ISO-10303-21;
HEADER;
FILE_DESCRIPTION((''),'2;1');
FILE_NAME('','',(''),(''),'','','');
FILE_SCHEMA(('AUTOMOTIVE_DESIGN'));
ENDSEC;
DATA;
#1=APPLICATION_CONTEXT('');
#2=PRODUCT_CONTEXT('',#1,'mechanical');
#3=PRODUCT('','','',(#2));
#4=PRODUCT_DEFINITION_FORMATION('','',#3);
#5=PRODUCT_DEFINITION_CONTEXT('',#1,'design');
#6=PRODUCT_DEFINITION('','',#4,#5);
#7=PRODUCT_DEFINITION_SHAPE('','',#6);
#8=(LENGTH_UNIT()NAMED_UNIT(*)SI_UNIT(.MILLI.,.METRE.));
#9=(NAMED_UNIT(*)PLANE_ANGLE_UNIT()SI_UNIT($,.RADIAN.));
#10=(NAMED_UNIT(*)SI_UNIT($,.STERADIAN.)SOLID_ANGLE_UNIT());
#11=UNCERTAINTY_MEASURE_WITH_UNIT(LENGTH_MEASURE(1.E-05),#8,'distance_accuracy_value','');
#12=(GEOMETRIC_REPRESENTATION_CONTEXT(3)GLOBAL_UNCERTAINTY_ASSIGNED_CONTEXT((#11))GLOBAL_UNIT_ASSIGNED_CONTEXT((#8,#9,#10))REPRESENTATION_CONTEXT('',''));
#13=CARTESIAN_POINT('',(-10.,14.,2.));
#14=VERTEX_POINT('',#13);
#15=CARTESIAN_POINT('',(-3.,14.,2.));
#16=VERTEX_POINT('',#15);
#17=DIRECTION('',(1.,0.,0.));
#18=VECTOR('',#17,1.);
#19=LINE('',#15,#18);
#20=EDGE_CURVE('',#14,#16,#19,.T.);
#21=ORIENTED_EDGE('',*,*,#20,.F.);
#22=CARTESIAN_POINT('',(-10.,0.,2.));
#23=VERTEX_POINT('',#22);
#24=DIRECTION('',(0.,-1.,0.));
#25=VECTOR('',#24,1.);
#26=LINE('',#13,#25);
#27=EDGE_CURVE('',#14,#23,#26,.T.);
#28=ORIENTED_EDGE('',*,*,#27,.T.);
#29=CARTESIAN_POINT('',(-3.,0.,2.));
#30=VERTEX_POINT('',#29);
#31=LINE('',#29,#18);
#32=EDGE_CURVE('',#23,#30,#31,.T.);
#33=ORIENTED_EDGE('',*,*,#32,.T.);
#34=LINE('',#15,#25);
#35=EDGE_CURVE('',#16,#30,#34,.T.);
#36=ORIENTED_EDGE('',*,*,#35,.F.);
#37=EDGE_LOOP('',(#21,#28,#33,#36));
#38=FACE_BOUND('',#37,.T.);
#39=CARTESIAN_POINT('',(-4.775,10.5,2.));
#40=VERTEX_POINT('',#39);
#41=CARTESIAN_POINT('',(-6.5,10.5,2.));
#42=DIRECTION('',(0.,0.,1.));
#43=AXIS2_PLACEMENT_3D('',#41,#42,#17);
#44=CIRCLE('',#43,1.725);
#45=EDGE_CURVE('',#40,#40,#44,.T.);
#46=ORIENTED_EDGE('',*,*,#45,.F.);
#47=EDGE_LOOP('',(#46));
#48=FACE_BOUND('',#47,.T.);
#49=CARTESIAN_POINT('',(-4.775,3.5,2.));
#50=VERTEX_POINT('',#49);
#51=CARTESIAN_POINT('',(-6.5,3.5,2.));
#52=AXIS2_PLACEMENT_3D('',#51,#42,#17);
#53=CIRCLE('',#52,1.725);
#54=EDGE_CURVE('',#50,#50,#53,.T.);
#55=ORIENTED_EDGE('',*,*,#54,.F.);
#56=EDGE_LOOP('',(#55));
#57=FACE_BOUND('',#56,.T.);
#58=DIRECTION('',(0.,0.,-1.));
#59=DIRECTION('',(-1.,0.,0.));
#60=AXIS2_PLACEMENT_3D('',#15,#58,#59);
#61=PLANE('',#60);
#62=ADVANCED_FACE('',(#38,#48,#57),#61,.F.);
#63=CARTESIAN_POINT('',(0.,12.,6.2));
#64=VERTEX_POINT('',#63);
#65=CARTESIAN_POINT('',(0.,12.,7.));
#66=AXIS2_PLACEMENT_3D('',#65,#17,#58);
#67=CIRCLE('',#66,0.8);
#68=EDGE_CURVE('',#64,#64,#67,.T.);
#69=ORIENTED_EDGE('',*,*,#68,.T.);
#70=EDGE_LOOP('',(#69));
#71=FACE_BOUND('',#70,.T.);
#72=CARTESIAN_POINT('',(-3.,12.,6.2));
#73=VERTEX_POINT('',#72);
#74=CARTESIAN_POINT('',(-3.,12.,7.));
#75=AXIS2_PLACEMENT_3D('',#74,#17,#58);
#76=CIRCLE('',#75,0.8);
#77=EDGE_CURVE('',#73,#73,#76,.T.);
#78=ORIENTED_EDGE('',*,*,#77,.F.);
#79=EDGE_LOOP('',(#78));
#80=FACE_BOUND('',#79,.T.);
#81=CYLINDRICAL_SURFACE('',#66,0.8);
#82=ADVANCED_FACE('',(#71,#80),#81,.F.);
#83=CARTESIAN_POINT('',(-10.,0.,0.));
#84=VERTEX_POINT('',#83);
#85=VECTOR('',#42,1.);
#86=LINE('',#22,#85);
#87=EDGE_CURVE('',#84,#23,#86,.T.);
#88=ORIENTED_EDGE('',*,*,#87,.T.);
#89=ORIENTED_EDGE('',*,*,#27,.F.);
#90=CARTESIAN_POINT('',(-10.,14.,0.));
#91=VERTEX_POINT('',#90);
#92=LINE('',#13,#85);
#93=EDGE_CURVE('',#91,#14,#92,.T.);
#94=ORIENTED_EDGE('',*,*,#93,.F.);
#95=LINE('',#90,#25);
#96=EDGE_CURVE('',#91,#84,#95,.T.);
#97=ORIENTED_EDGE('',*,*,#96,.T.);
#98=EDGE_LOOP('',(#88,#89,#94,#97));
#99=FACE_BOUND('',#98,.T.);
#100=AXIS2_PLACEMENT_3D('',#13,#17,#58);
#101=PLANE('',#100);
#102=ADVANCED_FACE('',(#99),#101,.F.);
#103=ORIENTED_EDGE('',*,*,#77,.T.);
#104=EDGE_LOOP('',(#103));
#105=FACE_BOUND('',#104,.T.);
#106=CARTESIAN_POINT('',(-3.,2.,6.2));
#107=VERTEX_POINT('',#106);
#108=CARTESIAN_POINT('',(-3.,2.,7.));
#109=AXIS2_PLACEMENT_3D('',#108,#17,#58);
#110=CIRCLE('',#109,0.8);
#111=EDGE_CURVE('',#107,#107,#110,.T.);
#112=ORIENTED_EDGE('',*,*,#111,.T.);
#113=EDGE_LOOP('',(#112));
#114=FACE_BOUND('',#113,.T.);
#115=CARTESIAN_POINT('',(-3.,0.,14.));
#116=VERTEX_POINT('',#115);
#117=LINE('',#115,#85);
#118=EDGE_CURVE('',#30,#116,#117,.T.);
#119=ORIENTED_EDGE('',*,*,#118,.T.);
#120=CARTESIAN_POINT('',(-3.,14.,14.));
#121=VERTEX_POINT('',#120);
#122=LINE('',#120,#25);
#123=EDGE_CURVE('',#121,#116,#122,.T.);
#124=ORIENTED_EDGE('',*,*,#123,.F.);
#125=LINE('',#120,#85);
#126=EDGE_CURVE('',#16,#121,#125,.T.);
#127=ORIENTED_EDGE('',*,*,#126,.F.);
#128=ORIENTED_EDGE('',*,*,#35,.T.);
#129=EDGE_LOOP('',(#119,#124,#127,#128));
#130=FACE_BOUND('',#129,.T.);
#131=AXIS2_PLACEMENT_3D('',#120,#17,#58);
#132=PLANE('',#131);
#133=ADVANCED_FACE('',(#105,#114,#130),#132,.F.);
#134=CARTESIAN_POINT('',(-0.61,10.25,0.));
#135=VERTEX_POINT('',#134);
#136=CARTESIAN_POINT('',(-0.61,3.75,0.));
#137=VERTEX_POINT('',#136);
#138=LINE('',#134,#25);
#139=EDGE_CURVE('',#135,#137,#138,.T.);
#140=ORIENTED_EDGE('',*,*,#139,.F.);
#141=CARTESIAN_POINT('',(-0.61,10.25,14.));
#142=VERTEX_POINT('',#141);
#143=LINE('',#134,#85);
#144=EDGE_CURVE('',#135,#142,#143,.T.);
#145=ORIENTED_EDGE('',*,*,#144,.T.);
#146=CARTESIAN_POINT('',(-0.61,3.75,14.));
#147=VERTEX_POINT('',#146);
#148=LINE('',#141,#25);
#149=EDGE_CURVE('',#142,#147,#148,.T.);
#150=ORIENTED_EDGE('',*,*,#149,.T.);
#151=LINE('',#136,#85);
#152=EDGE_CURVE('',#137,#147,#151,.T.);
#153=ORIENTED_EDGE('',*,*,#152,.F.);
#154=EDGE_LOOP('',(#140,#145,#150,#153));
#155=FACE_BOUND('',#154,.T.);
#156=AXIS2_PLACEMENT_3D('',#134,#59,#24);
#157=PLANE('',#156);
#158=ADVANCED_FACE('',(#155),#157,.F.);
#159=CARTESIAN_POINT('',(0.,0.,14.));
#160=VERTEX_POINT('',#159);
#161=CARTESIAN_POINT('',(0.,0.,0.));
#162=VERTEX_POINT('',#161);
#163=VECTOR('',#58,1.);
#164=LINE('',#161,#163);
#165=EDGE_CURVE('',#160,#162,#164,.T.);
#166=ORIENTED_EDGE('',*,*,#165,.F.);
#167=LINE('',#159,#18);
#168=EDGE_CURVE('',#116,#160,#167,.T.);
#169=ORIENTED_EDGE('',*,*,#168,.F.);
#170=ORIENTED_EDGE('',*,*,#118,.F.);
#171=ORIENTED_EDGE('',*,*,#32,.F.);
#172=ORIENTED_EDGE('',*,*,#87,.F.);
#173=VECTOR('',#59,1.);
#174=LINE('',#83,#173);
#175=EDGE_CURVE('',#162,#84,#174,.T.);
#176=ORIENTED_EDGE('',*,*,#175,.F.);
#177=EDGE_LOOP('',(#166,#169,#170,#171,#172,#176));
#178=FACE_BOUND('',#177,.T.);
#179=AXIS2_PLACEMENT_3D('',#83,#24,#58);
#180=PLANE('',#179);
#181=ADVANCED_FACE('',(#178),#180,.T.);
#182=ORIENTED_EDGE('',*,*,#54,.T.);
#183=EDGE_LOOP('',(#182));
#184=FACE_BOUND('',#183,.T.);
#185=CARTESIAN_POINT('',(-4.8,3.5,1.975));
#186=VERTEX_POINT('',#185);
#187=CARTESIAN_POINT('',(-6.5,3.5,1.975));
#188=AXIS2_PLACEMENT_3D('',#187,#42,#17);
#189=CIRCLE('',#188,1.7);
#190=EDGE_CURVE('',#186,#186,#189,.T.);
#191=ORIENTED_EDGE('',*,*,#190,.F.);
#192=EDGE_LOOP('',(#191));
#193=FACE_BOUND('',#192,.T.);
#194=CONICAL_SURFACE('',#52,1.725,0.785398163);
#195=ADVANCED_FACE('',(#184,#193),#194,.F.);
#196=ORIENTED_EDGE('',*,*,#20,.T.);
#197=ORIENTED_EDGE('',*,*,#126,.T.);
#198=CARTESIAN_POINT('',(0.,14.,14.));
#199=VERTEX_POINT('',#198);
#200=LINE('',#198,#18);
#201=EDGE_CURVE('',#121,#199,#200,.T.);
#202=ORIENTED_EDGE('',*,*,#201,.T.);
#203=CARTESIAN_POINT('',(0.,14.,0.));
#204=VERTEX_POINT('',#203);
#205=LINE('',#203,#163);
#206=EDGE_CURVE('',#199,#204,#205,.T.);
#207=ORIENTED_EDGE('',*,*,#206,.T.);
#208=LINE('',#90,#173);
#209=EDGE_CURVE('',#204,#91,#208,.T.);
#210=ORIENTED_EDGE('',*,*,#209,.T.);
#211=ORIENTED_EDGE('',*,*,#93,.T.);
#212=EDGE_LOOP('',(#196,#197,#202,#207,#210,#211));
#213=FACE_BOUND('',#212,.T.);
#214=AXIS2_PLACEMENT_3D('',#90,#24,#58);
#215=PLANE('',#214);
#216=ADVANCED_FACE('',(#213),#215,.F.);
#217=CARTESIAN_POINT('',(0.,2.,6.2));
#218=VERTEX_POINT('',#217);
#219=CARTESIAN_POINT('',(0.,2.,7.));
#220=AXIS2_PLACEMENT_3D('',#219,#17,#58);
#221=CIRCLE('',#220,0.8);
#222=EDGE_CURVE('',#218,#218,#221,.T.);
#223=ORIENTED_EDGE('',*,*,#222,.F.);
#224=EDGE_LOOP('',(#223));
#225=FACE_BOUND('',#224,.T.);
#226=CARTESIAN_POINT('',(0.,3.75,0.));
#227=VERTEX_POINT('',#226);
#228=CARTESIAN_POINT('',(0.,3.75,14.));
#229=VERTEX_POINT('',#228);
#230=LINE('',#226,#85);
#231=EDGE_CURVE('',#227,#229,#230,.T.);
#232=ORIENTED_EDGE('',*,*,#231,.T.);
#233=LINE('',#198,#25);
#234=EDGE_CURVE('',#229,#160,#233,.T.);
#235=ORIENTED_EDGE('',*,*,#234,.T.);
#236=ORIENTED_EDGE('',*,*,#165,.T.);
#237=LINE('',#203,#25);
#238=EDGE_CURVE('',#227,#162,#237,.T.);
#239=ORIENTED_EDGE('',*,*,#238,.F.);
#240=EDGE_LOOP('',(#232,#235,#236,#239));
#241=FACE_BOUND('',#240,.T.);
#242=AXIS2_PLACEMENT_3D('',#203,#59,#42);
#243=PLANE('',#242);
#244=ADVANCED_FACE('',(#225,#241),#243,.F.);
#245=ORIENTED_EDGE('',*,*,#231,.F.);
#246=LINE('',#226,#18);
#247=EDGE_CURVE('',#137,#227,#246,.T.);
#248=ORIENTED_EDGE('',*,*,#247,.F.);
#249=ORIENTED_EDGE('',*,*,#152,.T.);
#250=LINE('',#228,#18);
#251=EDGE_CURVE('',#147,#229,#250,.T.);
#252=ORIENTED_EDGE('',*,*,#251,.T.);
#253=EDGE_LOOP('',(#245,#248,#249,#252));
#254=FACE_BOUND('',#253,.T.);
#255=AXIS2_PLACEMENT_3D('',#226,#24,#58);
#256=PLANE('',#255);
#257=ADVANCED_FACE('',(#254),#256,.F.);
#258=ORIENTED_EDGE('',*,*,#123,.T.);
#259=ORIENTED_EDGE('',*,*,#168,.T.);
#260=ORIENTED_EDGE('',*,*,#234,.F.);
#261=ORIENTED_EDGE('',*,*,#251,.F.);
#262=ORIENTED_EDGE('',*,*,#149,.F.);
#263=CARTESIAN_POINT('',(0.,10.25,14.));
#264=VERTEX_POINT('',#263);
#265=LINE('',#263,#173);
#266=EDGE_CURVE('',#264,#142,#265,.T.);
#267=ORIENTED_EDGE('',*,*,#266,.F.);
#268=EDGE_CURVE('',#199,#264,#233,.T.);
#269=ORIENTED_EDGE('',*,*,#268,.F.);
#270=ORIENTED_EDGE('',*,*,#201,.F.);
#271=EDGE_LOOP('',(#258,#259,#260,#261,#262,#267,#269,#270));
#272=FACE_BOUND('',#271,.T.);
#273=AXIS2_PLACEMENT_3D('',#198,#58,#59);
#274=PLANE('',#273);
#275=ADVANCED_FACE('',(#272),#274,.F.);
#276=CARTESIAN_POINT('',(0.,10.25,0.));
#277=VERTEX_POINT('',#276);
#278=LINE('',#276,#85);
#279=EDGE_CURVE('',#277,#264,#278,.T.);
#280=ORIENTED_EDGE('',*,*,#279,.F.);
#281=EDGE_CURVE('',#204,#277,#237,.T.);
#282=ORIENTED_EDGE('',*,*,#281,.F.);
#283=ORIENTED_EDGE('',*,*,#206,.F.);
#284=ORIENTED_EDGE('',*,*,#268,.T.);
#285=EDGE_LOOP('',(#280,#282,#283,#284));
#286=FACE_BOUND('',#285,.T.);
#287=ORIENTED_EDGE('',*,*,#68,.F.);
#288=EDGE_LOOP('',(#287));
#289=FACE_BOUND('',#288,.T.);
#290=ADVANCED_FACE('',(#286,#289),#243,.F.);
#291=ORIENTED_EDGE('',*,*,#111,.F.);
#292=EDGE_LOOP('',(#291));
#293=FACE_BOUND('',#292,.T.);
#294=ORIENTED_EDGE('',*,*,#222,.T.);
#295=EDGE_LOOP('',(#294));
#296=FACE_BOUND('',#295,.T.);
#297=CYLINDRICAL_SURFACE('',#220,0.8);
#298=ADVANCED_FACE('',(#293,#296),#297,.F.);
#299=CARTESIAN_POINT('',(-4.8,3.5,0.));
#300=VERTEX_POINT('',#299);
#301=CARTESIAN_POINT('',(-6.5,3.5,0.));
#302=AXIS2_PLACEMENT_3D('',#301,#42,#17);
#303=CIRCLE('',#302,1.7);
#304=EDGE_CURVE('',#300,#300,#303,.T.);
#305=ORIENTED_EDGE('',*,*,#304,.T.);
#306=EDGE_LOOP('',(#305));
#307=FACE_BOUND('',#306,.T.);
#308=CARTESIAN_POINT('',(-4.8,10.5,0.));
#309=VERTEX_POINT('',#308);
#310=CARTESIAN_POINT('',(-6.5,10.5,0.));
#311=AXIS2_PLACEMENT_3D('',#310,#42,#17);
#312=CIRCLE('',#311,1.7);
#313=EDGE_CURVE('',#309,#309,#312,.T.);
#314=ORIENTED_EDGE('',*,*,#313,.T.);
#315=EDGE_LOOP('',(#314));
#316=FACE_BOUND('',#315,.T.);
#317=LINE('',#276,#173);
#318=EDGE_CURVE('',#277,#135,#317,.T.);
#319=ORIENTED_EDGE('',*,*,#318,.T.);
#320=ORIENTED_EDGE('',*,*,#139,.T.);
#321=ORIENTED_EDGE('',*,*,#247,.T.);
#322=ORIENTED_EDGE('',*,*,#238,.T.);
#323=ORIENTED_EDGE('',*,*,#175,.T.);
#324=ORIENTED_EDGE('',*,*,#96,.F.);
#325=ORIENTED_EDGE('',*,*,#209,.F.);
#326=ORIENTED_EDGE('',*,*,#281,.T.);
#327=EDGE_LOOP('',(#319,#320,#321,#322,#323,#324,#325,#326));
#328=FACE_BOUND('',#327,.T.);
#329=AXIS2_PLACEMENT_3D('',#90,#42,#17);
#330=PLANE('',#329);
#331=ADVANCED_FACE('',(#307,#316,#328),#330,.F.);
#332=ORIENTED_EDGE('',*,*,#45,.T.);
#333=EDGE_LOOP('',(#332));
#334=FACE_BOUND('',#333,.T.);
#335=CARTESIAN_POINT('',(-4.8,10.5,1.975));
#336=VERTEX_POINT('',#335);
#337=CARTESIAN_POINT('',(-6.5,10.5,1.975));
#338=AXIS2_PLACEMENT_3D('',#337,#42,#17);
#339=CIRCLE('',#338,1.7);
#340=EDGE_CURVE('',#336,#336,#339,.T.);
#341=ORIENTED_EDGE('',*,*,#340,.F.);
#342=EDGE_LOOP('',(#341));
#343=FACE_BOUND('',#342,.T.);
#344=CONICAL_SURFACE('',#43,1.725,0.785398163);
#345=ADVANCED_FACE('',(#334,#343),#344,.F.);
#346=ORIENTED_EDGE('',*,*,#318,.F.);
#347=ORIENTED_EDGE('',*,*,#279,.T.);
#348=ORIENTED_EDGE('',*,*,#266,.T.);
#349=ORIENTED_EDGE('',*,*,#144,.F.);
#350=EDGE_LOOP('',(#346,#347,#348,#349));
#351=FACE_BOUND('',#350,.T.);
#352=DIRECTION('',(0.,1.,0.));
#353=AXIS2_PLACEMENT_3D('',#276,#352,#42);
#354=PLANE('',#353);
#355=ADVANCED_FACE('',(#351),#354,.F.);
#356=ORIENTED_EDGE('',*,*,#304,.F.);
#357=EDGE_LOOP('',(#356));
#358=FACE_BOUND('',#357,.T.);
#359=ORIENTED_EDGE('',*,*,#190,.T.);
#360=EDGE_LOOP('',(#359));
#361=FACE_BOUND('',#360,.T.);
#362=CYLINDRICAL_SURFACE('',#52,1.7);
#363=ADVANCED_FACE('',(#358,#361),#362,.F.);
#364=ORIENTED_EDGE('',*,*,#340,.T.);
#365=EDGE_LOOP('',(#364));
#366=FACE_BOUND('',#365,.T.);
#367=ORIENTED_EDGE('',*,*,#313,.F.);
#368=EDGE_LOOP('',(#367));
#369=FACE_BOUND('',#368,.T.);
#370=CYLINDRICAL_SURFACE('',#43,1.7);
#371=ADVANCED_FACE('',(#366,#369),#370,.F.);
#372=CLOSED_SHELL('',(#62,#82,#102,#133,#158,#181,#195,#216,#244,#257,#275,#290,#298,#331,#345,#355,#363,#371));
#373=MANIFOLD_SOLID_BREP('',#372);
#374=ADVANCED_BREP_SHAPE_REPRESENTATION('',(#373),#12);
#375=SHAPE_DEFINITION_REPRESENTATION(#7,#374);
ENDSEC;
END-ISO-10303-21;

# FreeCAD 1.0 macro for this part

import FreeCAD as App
import Part
import Sketcher

V = App.Vector


def add_polygon(sketch, points):
    """Adds a closed chain of lines whose ends are joined by coincident constraints."""
    first, n = sketch.GeometryCount, len(points)
    for a, b in zip(points, points[1:] + points[:1]):
        sketch.addGeometry(Part.LineSegment(App.Vector(*a, 0), App.Vector(*b, 0)), False)
    for i in range(n):
        sketch.addConstraint(Sketcher.Constraint("Coincident", first + i, 2, first + (i + 1) % n, 1))

doc = App.newDocument("Part")
body = doc.addObject("PartDesign::Body", "Body")

# Sketch on XZ plane
sketch1 = doc.addObject("Sketcher::SketchObject", "Sketch")
body.addObject(sketch1)
sketch1.AttachmentSupport = (doc.XZ_Plane, [""])
sketch1.MapMode = "FlatFace"
add_polygon(sketch1, [(0, 0), (-10, 0), (-10, 2), (-3, 2), (-3, 14), (0, 14)])  # lines 0-5
sketch1.addConstraint(Sketcher.Constraint("Horizontal", 0))
sketch1.addConstraint(Sketcher.Constraint("Vertical", 1))
sketch1.addConstraint(Sketcher.Constraint("Horizontal", 2))
sketch1.addConstraint(Sketcher.Constraint("Vertical", 3))
sketch1.addConstraint(Sketcher.Constraint("Horizontal", 4))
sketch1.addConstraint(Sketcher.Constraint("Vertical", 5))
sketch1.addConstraint(Sketcher.Constraint("Coincident", 5, 2, -1, 1))
sketch1.addConstraint(Sketcher.Constraint("DistanceX", 0, 2, 0, 1, 10.0))
sketch1.addConstraint(Sketcher.Constraint("DistanceX", 2, 1, 2, 2, 7.0))
sketch1.addConstraint(Sketcher.Constraint("DistanceY", 1, 1, 1, 2, 2.0))
sketch1.addConstraint(Sketcher.Constraint("DistanceY", 3, 1, 3, 2, 12.0))
pad1 = doc.addObject("PartDesign::Pad", "Pad")
body.addObject(pad1)
pad1.Profile = sketch1
pad1.Length = 14
pad1.Reversed = True

# Sketch on XY plane
sketch2 = doc.addObject("Sketcher::SketchObject", "Sketch001")
body.addObject(sketch2)
sketch2.AttachmentSupport = (doc.XY_Plane, [""])
sketch2.MapMode = "FlatFace"
sketch2.AttachmentOffset = App.Placement(V(0, 0, 2), App.Rotation())
sketch2.addGeometry(Part.Circle(V(-6.5, 10.5, 0), V(0, 0, 1), 1.7), False)
sketch2.addGeometry(Part.Circle(V(-6.5, 3.5, 0), V(0, 0, 1), 1.7), False)
sketch2.addConstraint(Sketcher.Constraint("Equal", 0, 1))
sketch2.addConstraint(Sketcher.Constraint("Vertical", 0, 3, 1, 3))
sketch2.addConstraint(Sketcher.Constraint("Diameter", 0, 3.4))
sketch2.addConstraint(Sketcher.Constraint("DistanceY", 1, 3, 0, 3, 7.0))
sketch2.addConstraint(Sketcher.Constraint("DistanceX", 0, 3, -1, 1, 6.5))
sketch2.addConstraint(Sketcher.Constraint("DistanceY", -1, 1, 0, 3, 10.5))
doc.recompute()
hole = doc.addObject("PartDesign::Hole", "Hole")
body.addObject(hole)
hole.Profile = sketch2
hole.ThreadType = "None"
hole.Diameter = 3.4
hole.DepthType = "ThroughAll"
hole.HoleCutType = "Countersink"
hole.HoleCutDiameter = 3.45
hole.HoleCutCountersinkAngle = 90

# Sketch on XY plane
sketch3 = doc.addObject("Sketcher::SketchObject", "Sketch002")
body.addObject(sketch3)
sketch3.AttachmentSupport = (doc.XY_Plane, [""])
sketch3.MapMode = "FlatFace"
sketch3.AttachmentOffset = App.Placement(V(0, 0, 14), App.Rotation())
add_polygon(sketch3, [(-0.6, 10.2), (-0.6, 3.8), (0, 3.8), (0, 10.2)])  # lines 0-3
sketch3.addConstraint(Sketcher.Constraint("Vertical", 0))
sketch3.addConstraint(Sketcher.Constraint("Horizontal", 1))
sketch3.addConstraint(Sketcher.Constraint("Vertical", 2))
sketch3.addConstraint(Sketcher.Constraint("Horizontal", 3))
sketch3.addConstraint(Sketcher.Constraint("PointOnObject", 1, 2, -2))
sketch3.addConstraint(Sketcher.Constraint("DistanceY", 0, 2, 0, 1, 6.5))
sketch3.addConstraint(Sketcher.Constraint("DistanceX", 1, 1, 1, 2, 0.61))
sketch3.addConstraint(Sketcher.Constraint("DistanceY", -1, 1, 0, 2, 3.75))
pocket1 = doc.addObject("PartDesign::Pocket", "Pocket")
body.addObject(pocket1)
pocket1.Profile = sketch3
pocket1.Type = "ThroughAll"

# Sketch on YZ plane
sketch4 = doc.addObject("Sketcher::SketchObject", "Sketch003")
body.addObject(sketch4)
sketch4.AttachmentSupport = (doc.YZ_Plane, [""])
sketch4.MapMode = "FlatFace"
sketch4.addGeometry(Part.Circle(V(12, 7, 0), V(0, 0, 1), 0.8), False)
sketch4.addGeometry(Part.Circle(V(2, 7, 0), V(0, 0, 1), 0.8), False)
sketch4.addConstraint(Sketcher.Constraint("Equal", 0, 1))
sketch4.addConstraint(Sketcher.Constraint("Horizontal", 0, 3, 1, 3))
sketch4.addConstraint(Sketcher.Constraint("Diameter", 0, 1.6))
sketch4.addConstraint(Sketcher.Constraint("DistanceX", -1, 1, 0, 3, 12.0))
sketch4.addConstraint(Sketcher.Constraint("DistanceY", -1, 1, 0, 3, 7.0))
sketch4.addConstraint(Sketcher.Constraint("DistanceX", -1, 1, 1, 3, 2.0))
doc.recompute()
hole2 = doc.addObject("PartDesign::Hole", "Hole001")
body.addObject(hole2)
hole2.Profile = sketch4
hole2.ThreadType = "None"
hole2.Diameter = 1.6
hole2.DepthType = "ThroughAll"

doc.recompute()
